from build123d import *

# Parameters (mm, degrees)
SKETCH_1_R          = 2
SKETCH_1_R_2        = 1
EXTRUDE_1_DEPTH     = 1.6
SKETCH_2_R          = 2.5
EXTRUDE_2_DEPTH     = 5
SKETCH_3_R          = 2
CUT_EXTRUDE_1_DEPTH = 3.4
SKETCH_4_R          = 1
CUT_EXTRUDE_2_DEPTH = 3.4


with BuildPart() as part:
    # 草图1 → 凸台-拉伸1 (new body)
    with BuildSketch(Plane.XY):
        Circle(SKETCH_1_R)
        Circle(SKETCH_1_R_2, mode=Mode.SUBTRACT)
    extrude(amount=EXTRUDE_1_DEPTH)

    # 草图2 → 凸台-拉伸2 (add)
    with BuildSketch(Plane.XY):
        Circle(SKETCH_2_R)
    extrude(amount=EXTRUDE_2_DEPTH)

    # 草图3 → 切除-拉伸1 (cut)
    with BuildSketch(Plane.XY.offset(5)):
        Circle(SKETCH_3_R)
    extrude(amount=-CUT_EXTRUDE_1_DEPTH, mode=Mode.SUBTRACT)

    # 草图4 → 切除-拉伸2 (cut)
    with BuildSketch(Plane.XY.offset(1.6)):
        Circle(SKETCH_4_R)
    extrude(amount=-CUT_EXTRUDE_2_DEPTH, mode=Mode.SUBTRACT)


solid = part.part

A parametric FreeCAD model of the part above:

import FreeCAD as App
import Part
import Sketcher
from FreeCAD import Vector
Q = App.Units.Quantity

doc = App.newDocument("Part")
body = doc.addObject("PartDesign::Body", "Body")

sketch1 = body.newObject("Sketcher::SketchObject", "Sketch")
sketch1.AttachmentSupport = (doc.getObject("XY_Plane"), [""])
sketch1.MapMode = "FlatFace"
sketch1.addGeometry(Part.Circle(Vector(0, 0, 0), Vector(0, 0, 1), 2), False)
sketch1.addGeometry(Part.Circle(Vector(0, 0, 0), Vector(0, 0, 1), 1), False)
sketch1.addConstraint(Sketcher.Constraint("Coincident", 0, 3, -1, 1))
sketch1.addConstraint(Sketcher.Constraint("Coincident", 1, 3, -1, 1))
sketch1.addConstraint(Sketcher.Constraint("Diameter", 0, Q("4 mm")))
sketch1.addConstraint(Sketcher.Constraint("Diameter", 1, Q("2 mm")))
pad1 = body.newObject("PartDesign::Pad", "Pad")
pad1.Profile = sketch1
pad1.Length = 1.6

sketch2 = body.newObject("Sketcher::SketchObject", "Sketch001")
sketch2.AttachmentSupport = (doc.getObject("XY_Plane"), [""])
sketch2.MapMode = "FlatFace"
sketch2.addGeometry(Part.Circle(Vector(0, 0, 0), Vector(0, 0, 1), 2.5), False)
sketch2.addConstraint(Sketcher.Constraint("Coincident", 0, 3, -1, 1))
sketch2.addConstraint(Sketcher.Constraint("Diameter", 0, Q("5 mm")))
pad2 = body.newObject("PartDesign::Pad", "Pad001")
pad2.Profile = sketch2
pad2.Length = 5

sketch3 = body.newObject("Sketcher::SketchObject", "Sketch002")
sketch3.AttachmentSupport = (doc.getObject("XY_Plane"), [""])
sketch3.MapMode = "FlatFace"
sketch3.AttachmentOffset = App.Placement(Vector(0, 0, 5), App.Rotation())
sketch3.addGeometry(Part.Circle(Vector(0, 0, 0), Vector(0, 0, 1), 2), False)
sketch3.addConstraint(Sketcher.Constraint("Coincident", 0, 3, -1, 1))
sketch3.addConstraint(Sketcher.Constraint("Diameter", 0, Q("4 mm")))
pocket1 = body.newObject("PartDesign::Pocket", "Pocket")
pocket1.Profile = sketch3
pocket1.Length = 3.4

sketch4 = body.newObject("Sketcher::SketchObject", "Sketch003")
sketch4.AttachmentSupport = (doc.getObject("XY_Plane"), [""])
sketch4.MapMode = "FlatFace"
sketch4.AttachmentOffset = App.Placement(Vector(0, 0, 1.6), App.Rotation())
sketch4.addGeometry(Part.Circle(Vector(0, 0, 0), Vector(0, 0, 1), 1), False)
sketch4.addConstraint(Sketcher.Constraint("Coincident", 0, 3, -1, 1))
sketch4.addConstraint(Sketcher.Constraint("Diameter", 0, Q("2 mm")))
pocket2 = body.newObject("PartDesign::Pocket", "Pocket001")
pocket2.Profile = sketch4
pocket2.Length = 3.4

doc.recompute()
